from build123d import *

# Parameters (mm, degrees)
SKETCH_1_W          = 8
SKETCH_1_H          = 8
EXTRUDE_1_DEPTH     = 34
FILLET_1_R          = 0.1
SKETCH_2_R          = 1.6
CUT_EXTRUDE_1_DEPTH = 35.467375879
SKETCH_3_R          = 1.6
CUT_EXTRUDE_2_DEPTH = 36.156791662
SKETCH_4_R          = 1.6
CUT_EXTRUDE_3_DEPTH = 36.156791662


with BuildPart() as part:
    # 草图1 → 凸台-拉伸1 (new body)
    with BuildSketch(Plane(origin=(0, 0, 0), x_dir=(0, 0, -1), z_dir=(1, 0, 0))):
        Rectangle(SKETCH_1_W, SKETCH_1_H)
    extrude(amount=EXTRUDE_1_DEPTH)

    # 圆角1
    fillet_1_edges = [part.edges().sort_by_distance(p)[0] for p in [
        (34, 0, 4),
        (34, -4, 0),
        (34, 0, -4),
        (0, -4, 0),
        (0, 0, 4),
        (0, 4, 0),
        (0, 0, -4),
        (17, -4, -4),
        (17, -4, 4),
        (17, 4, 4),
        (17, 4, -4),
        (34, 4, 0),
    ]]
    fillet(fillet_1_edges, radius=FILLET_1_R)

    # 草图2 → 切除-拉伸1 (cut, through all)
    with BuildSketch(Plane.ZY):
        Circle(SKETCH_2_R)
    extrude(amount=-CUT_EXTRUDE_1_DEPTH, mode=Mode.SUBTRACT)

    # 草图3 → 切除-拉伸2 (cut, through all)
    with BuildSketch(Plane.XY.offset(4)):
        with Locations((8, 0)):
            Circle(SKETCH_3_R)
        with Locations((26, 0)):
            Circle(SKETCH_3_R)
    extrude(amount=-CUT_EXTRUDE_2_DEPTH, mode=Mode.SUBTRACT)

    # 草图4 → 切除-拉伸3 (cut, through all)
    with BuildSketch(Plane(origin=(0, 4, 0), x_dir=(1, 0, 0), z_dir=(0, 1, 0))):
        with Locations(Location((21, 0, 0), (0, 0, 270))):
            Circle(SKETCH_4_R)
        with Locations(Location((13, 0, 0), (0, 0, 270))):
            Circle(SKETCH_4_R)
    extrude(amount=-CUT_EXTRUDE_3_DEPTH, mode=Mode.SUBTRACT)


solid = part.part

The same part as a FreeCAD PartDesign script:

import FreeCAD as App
import Part
import Sketcher
from FreeCAD import Vector
Q = App.Units.Quantity


def add_polygon(sketch, points):
    """Adds a closed chain of lines whose ends are joined by coincident constraints."""
    first, n = sketch.GeometryCount, len(points)
    for a, b in zip(points, points[1:] + points[:1]):
        sketch.addGeometry(Part.LineSegment(App.Vector(*a, 0), App.Vector(*b, 0)), False)
    for i in range(n):
        sketch.addConstraint(Sketcher.Constraint("Coincident", first + i, 2, first + (i + 1) % n, 1))

doc = App.newDocument("Part")
params = doc.addObject("Spreadsheet::Sheet", "Params")
for row, (alias, value) in enumerate([
    ("sketch1_width", "8 mm"),
    ("pad1_length", "34 mm"),
    ("fillet_radius", "0.1 mm"),
    ("sketch2_diameter", "3.2 mm"),
    ("sketch3_diameter", "3.2 mm"),
    ("sketch4_diameter", "3.2 mm"),
], start=1):
    params.set(f"A{row}", alias)
    params.set(f"B{row}", "=" + value)
    params.setAlias(f"B{row}", alias)

body = doc.addObject("PartDesign::Body", "Body")

# Sketch on YZ plane
sketch1 = body.newObject("Sketcher::SketchObject", "Sketch")
sketch1.AttachmentSupport = (doc.getObject("YZ_Plane"), [""])
sketch1.MapMode = "FlatFace"
add_polygon(sketch1, [(4, 4), (-4, 4), (-4, -4), (4, -4)])  # lines 0-3
sketch1.addConstraint([
    Sketcher.Constraint("Horizontal", 0),
    Sketcher.Constraint("Vertical", 1),
    Sketcher.Constraint("Horizontal", 2),
    Sketcher.Constraint("Vertical", 3),
    Sketcher.Constraint("Symmetric", 0, 2, 2, 2, -1, 1),
    Sketcher.Constraint("Equal", 2, 1),
    Sketcher.Constraint("DistanceX", 0, 2, 0, 1, Q("8 mm")),
])
sketch1.setExpression("Constraints[10]", "Params.sketch1_width")
pad1 = body.newObject("PartDesign::Pad", "Pad")
pad1.Profile = sketch1
pad1.setExpression("Length", "Params.pad1_length")
doc.recompute()

fillet = body.newObject("PartDesign::Fillet", "Fillet")
fillet.Base = (pad1, ["Edge1"])
fillet.UseAllEdges = True
fillet.setExpression("Radius", "Params.fillet_radius")

# Sketch on YZ plane
sketch2 = body.newObject("Sketcher::SketchObject", "Sketch001")
sketch2.AttachmentSupport = (doc.getObject("YZ_Plane"), [""])
sketch2.MapMode = "FlatFace"
sketch2.addGeometry(Part.Circle(Vector(0, 0, 0), Vector(0, 0, 1), 1.6), False)
sketch2.addConstraint([
    Sketcher.Constraint("Coincident", 0, 3, -1, 1),
    Sketcher.Constraint("Diameter", 0, Q("3.2 mm")),
])
sketch2.setExpression("Constraints[1]", "Params.sketch2_diameter")
pocket1 = body.newObject("PartDesign::Pocket", "Pocket")
pocket1.Profile = sketch2
pocket1.Type = "ThroughAll"
pocket1.Reversed = True

# Sketch on XY plane
sketch3 = body.newObject("Sketcher::SketchObject", "Sketch002")
sketch3.AttachmentSupport = (doc.getObject("XY_Plane"), [""])
sketch3.MapMode = "FlatFace"
sketch3.AttachmentOffset = App.Placement(Vector(0, 0, 4), App.Rotation())
sketch3.addGeometry([
    Part.Circle(Vector(8, 0, 0), Vector(0, 0, 1), 1.6),
    Part.Circle(Vector(26, 0, 0), Vector(0, 0, 1), 1.6),
], False)
sketch3.addConstraint([
    Sketcher.Constraint("Equal", 0, 1),
    Sketcher.Constraint("PointOnObject", 0, 3, -1),
    Sketcher.Constraint("PointOnObject", 1, 3, -1),
    Sketcher.Constraint("Diameter", 0, Q("3.2 mm")),
    Sketcher.Constraint("DistanceX", -1, 1, 0, 3, Q("8 mm")),
    Sketcher.Constraint("DistanceX", -1, 1, 1, 3, Q("26 mm")),
])
sketch3.setExpression("Constraints[3]", "Params.sketch3_diameter")
pocket2 = body.newObject("PartDesign::Pocket", "Pocket001")
pocket2.Profile = sketch3
pocket2.Type = "ThroughAll"

# Sketch on XZ plane
sketch4 = body.newObject("Sketcher::SketchObject", "Sketch003")
sketch4.AttachmentSupport = (doc.getObject("XZ_Plane"), [""])
sketch4.MapMode = "FlatFace"
sketch4.AttachmentOffset = App.Placement(Vector(0, 0, -4), App.Rotation())
sketch4.addGeometry([
    Part.Circle(Vector(21, 0, 0), Vector(0, 0, 1), 1.6),
    Part.Circle(Vector(13, 0, 0), Vector(0, 0, 1), 1.6),
], False)
sketch4.addConstraint([
    Sketcher.Constraint("Equal", 0, 1),
    Sketcher.Constraint("PointOnObject", 0, 3, -1),
    Sketcher.Constraint("PointOnObject", 1, 3, -1),
    Sketcher.Constraint("Diameter", 0, Q("3.2 mm")),
    Sketcher.Constraint("DistanceX", -1, 1, 0, 3, Q("21 mm")),
    Sketcher.Constraint("DistanceX", -1, 1, 1, 3, Q("13 mm")),
])
sketch4.setExpression("Constraints[3]", "Params.sketch4_diameter")
pocket3 = body.newObject("PartDesign::Pocket", "Pocket002")
pocket3.Profile = sketch4
pocket3.Type = "ThroughAll"
pocket3.Reversed = True

doc.recompute()
